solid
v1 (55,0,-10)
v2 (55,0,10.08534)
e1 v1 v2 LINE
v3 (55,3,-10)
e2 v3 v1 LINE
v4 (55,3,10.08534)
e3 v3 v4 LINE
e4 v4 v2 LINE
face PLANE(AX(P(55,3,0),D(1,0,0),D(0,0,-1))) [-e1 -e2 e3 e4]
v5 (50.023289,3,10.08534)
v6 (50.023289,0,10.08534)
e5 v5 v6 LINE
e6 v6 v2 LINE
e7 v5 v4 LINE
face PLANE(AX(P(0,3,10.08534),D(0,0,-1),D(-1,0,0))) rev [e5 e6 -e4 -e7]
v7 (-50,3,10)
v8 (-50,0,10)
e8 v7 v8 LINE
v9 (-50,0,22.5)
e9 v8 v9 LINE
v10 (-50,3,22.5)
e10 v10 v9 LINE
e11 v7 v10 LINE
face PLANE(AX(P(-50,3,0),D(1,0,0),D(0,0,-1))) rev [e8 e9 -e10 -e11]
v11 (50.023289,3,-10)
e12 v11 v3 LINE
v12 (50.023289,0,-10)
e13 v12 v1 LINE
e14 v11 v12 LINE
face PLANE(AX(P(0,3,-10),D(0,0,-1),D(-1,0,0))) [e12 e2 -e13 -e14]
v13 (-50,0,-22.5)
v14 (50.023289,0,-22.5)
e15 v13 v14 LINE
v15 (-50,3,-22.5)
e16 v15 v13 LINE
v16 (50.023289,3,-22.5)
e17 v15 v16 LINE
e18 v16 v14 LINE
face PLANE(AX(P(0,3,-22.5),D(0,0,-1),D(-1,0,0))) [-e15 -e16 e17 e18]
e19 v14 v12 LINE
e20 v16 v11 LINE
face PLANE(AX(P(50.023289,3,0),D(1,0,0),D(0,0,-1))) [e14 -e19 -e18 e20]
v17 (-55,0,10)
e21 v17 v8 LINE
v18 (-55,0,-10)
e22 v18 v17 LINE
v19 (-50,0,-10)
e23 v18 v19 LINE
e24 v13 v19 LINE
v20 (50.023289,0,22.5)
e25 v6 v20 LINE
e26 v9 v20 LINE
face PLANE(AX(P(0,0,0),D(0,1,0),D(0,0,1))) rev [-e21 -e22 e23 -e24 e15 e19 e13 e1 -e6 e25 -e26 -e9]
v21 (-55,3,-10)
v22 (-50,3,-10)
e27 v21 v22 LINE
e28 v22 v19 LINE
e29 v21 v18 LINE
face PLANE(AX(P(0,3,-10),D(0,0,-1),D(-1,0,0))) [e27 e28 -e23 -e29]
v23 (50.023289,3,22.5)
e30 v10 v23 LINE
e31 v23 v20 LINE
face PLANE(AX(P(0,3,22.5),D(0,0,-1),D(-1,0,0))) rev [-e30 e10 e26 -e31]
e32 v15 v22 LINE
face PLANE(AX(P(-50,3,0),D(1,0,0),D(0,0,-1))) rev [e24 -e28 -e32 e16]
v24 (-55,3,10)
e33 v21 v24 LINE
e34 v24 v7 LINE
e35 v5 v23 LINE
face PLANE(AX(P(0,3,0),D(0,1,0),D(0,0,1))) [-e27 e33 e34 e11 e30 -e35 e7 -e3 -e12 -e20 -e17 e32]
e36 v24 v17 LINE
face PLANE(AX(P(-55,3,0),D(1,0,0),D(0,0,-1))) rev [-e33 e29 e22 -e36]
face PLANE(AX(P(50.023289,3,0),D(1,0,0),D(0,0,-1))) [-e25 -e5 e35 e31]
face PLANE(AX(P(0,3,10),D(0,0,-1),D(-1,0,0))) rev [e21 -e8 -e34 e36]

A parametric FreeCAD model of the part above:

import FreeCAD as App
import Part
import Sketcher


def add_polygon(sketch, points):
    """Adds a closed chain of lines whose ends are joined by coincident constraints."""
    first, n = sketch.GeometryCount, len(points)
    for a, b in zip(points, points[1:] + points[:1]):
        sketch.addGeometry(Part.LineSegment(App.Vector(*a, 0), App.Vector(*b, 0)), False)
    for i in range(n):
        sketch.addConstraint(Sketcher.Constraint("Coincident", first + i, 2, first + (i + 1) % n, 1))

doc = App.newDocument("Part")
body = doc.addObject("PartDesign::Body", "Body")

# Sketch on XZ plane
sketch1 = body.newObject("Sketcher::SketchObject", "Sketch")
sketch1.AttachmentSupport = (doc.getObject("XZ_Plane"), [""])
sketch1.MapMode = "FlatFace"
add_polygon(sketch1, [(-50, 10), (-50, 22.5), (50, 22.5), (50, 10.1), (55, 10.1), (55, -10), (50, -10), (50, -22.5), (-50, -22.5), (-50, -10), (-55, -10), (-55, 10)])  # lines 0-11
sketch1.addConstraint([
    Sketcher.Constraint("Vertical", 0),
    Sketcher.Constraint("Horizontal", 1),
    Sketcher.Constraint("Vertical", 2),
    Sketcher.Constraint("Horizontal", 3),
    Sketcher.Constraint("Vertical", 4),
    Sketcher.Constraint("Horizontal", 5),
    Sketcher.Constraint("Vertical", 6),
    Sketcher.Constraint("Horizontal", 7),
    Sketcher.Constraint("Vertical", 8),
    Sketcher.Constraint("Horizontal", 9),
    Sketcher.Constraint("Vertical", 10),
    Sketcher.Constraint("Horizontal", 11),
    Sketcher.Constraint("Symmetric", 4, 2, 10, 2, -1, 1),
    Sketcher.Constraint("Symmetric", 1, 2, 6, 2, -1),
    Sketcher.Constraint("Symmetric", 8, 2, 11, 2, -1),
    Sketcher.Constraint("DistanceX", 9, 2, 9, 1, 5.0),
    Sketcher.Constraint("DistanceY", 10, 1, 10, 2, 20.0),
    Sketcher.Constraint("DistanceY", 0, 1, 0, 2, 12.5),
    Sketcher.Constraint("DistanceX", 0, 2, -1, 1, 50.0),
    Sketcher.Constraint("DistanceX", 1, 1, 1, 2, 100.023289),
    Sketcher.Constraint("DistanceY", 2, 2, 2, 1, 12.41466),
])
pad1 = body.newObject("PartDesign::Pad", "Pad")
pad1.Profile = sketch1
pad1.Length = 3
pad1.Reversed = True

doc.recompute()
